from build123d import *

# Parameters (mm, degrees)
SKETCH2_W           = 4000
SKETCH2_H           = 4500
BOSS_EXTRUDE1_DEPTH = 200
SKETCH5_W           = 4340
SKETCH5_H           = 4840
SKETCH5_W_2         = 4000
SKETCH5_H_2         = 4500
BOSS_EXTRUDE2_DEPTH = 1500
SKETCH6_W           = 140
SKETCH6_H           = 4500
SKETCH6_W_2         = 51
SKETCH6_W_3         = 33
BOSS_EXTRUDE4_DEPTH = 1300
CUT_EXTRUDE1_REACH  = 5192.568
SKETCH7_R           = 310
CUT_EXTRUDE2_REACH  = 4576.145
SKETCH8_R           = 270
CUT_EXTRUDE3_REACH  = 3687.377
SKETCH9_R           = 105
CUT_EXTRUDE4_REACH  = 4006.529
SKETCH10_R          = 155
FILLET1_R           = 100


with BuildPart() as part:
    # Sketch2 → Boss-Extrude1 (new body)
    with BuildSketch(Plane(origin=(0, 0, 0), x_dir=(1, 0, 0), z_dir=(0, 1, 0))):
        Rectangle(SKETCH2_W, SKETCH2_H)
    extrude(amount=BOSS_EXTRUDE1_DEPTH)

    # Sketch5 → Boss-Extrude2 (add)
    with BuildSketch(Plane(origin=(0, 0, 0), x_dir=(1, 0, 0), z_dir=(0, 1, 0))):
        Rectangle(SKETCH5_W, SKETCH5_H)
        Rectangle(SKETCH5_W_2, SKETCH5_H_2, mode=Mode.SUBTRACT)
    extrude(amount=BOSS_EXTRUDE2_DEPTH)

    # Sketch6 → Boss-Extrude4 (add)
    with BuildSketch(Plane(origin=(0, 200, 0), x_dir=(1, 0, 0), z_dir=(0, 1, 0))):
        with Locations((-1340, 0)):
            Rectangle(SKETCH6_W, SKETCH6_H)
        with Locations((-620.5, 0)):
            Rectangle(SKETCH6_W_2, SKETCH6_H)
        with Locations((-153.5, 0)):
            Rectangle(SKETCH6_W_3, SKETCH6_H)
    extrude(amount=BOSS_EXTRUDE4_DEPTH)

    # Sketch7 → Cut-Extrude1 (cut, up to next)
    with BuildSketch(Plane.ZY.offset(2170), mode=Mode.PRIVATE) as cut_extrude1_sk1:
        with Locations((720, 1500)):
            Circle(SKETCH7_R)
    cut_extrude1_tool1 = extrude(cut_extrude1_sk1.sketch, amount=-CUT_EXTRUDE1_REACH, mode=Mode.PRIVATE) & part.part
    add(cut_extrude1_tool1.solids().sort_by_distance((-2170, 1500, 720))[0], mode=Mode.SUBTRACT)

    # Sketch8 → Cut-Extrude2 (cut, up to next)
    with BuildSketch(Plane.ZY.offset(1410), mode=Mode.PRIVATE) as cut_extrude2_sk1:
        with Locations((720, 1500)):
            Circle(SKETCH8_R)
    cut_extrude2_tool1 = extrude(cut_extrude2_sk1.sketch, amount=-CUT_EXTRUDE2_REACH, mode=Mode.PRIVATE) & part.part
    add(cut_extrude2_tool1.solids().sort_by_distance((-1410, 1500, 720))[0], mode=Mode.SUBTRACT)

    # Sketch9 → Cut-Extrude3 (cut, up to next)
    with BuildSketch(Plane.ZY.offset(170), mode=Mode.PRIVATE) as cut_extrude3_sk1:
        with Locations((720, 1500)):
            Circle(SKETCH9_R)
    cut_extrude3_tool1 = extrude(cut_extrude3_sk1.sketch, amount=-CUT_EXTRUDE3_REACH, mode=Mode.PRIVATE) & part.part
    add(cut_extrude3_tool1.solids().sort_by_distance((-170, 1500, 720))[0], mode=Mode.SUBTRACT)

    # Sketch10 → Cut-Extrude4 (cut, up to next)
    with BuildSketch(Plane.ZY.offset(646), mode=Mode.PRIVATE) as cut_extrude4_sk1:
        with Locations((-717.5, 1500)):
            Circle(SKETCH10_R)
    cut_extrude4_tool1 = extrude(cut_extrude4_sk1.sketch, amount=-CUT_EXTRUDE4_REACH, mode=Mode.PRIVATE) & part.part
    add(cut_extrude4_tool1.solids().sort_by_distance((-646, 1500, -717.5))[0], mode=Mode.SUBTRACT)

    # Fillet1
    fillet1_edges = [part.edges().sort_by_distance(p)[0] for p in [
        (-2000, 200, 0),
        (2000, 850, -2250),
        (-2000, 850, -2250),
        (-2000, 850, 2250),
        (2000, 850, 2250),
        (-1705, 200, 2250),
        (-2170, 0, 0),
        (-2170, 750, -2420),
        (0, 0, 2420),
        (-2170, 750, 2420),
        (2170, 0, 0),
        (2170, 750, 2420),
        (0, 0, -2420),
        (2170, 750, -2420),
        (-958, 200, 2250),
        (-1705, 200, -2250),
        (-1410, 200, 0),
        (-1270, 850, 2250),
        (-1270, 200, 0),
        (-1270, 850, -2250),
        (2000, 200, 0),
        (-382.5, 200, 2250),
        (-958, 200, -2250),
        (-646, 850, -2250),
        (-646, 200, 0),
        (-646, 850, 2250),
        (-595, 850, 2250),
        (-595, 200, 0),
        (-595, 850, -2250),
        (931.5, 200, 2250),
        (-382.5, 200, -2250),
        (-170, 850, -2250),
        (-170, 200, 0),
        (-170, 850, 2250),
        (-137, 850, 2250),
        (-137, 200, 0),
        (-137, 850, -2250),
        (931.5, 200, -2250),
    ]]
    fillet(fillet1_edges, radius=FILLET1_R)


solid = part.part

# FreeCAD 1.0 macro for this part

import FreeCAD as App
import Part
import Sketcher
from FreeCAD import Vector


def edges_at(feature, points):
    """Names of the edges that pass closest to the given points."""
    edges = feature.Shape.Edges
    near = lambda p: min(range(len(edges)), key=lambda i: edges[i].distToShape(Part.Vertex(*p))[0])
    return sorted({f"Edge{near(p) + 1}" for p in points})

doc = App.newDocument("Part")
body = doc.addObject("PartDesign::Body", "Body")

# Sketch on XZ plane
sketch1 = doc.addObject("Sketcher::SketchObject", "Sketch")
body.addObject(sketch1)
sketch1.AttachmentSupport = (doc.XZ_Plane, [""])
sketch1.MapMode = "FlatFace"
sketch1.addGeometry(Part.LineSegment(Vector(-2000, -2250, 0), Vector(-2000, 2250, 0)), False)
sketch1.addGeometry(Part.LineSegment(Vector(-2000, 2250, 0), Vector(2000, 2250, 0)), False)
sketch1.addGeometry(Part.LineSegment(Vector(2000, 2250, 0), Vector(2000, -2250, 0)), False)
sketch1.addGeometry(Part.LineSegment(Vector(2000, -2250, 0), Vector(-2000, -2250, 0)), False)
sketch1.addConstraint(Sketcher.Constraint("Coincident", 0, 2, 1, 1))
sketch1.addConstraint(Sketcher.Constraint("Coincident", 1, 2, 2, 1))
sketch1.addConstraint(Sketcher.Constraint("Coincident", 2, 2, 3, 1))
sketch1.addConstraint(Sketcher.Constraint("Coincident", 3, 2, 0, 1))
sketch1.addConstraint(Sketcher.Constraint("Vertical", 0))
sketch1.addConstraint(Sketcher.Constraint("Horizontal", 1))
sketch1.addConstraint(Sketcher.Constraint("Vertical", 2))
sketch1.addConstraint(Sketcher.Constraint("Horizontal", 3))
sketch1.addConstraint(Sketcher.Constraint("Symmetric", 0, 2, 2, 2, -1, 1))
sketch1.addConstraint(Sketcher.Constraint("DistanceX", 1, 1, 1, 2, 4000.0))
sketch1.addConstraint(Sketcher.Constraint("DistanceY", 0, 1, 0, 2, 4500.0))
pad1 = doc.addObject("PartDesign::Pad", "Pad")
body.addObject(pad1)
pad1.Profile = sketch1
pad1.Length = 200
pad1.Reversed = True

# Sketch on XZ plane
sketch2 = doc.addObject("Sketcher::SketchObject", "Sketch001")
body.addObject(sketch2)
sketch2.AttachmentSupport = (doc.XZ_Plane, [""])
sketch2.MapMode = "FlatFace"
sketch2.addGeometry(Part.LineSegment(Vector(-2170, -2420, 0), Vector(-2170, 2420, 0)), False)
sketch2.addGeometry(Part.LineSegment(Vector(-2170, 2420, 0), Vector(2170, 2420, 0)), False)
sketch2.addGeometry(Part.LineSegment(Vector(2170, 2420, 0), Vector(2170, -2420, 0)), False)
sketch2.addGeometry(Part.LineSegment(Vector(2170, -2420, 0), Vector(-2170, -2420, 0)), False)
sketch2.addGeometry(Part.LineSegment(Vector(2000, 2250, 0), Vector(-2000, 2250, 0)), False)
sketch2.addGeometry(Part.LineSegment(Vector(-2000, 2250, 0), Vector(-2000, -2250, 0)), False)
sketch2.addGeometry(Part.LineSegment(Vector(-2000, -2250, 0), Vector(2000, -2250, 0)), False)
sketch2.addGeometry(Part.LineSegment(Vector(2000, -2250, 0), Vector(2000, 2250, 0)), False)
sketch2.addConstraint(Sketcher.Constraint("Coincident", 0, 2, 1, 1))
sketch2.addConstraint(Sketcher.Constraint("Coincident", 1, 2, 2, 1))
sketch2.addConstraint(Sketcher.Constraint("Coincident", 2, 2, 3, 1))
sketch2.addConstraint(Sketcher.Constraint("Coincident", 3, 2, 0, 1))
sketch2.addConstraint(Sketcher.Constraint("Coincident", 4, 2, 5, 1))
sketch2.addConstraint(Sketcher.Constraint("Coincident", 5, 2, 6, 1))
sketch2.addConstraint(Sketcher.Constraint("Coincident", 6, 2, 7, 1))
sketch2.addConstraint(Sketcher.Constraint("Coincident", 7, 2, 4, 1))
sketch2.addConstraint(Sketcher.Constraint("Vertical", 0))
sketch2.addConstraint(Sketcher.Constraint("Horizontal", 1))
sketch2.addConstraint(Sketcher.Constraint("Vertical", 2))
sketch2.addConstraint(Sketcher.Constraint("Horizontal", 3))
sketch2.addConstraint(Sketcher.Constraint("Horizontal", 4))
sketch2.addConstraint(Sketcher.Constraint("Vertical", 5))
sketch2.addConstraint(Sketcher.Constraint("Horizontal", 6))
sketch2.addConstraint(Sketcher.Constraint("Vertical", 7))
sketch2.addConstraint(Sketcher.Constraint("Symmetric", 0, 2, 2, 2, -1, 1))
sketch2.addConstraint(Sketcher.Constraint("Symmetric", 4, 2, 6, 2, -1, 1))
sketch2.addConstraint(Sketcher.Constraint("DistanceX", 1, 1, 1, 2, 4340.0))
sketch2.addConstraint(Sketcher.Constraint("DistanceX", 4, 2, 4, 1, 4000.0))
sketch2.addConstraint(Sketcher.Constraint("DistanceY", 0, 1, 0, 2, 4840.0))
sketch2.addConstraint(Sketcher.Constraint("DistanceY", 5, 2, 5, 1, 4500.0))
pad2 = doc.addObject("PartDesign::Pad", "Pad001")
body.addObject(pad2)
pad2.Profile = sketch2
pad2.Length = 1500
pad2.Reversed = True

# Sketch on XZ plane
sketch3 = doc.addObject("Sketcher::SketchObject", "Sketch002")
body.addObject(sketch3)
sketch3.AttachmentSupport = (doc.XZ_Plane, [""])
sketch3.MapMode = "FlatFace"
sketch3.AttachmentOffset = App.Placement(Vector(0, 0, -200), App.Rotation())
sketch3.addGeometry(Part.LineSegment(Vector(-1410, -2250, 0), Vector(-1410, 2250, 0)), False)
sketch3.addGeometry(Part.LineSegment(Vector(-1410, 2250, 0), Vector(-1270, 2250, 0)), False)
sketch3.addGeometry(Part.LineSegment(Vector(-1270, 2250, 0), Vector(-1270, -2250, 0)), False)
sketch3.addGeometry(Part.LineSegment(Vector(-1270, -2250, 0), Vector(-1410, -2250, 0)), False)
sketch3.addGeometry(Part.LineSegment(Vector(-646, -2250, 0), Vector(-646, 2250, 0)), False)
sketch3.addGeometry(Part.LineSegment(Vector(-646, 2250, 0), Vector(-595, 2250, 0)), False)
sketch3.addGeometry(Part.LineSegment(Vector(-595, 2250, 0), Vector(-595, -2250, 0)), False)
sketch3.addGeometry(Part.LineSegment(Vector(-595, -2250, 0), Vector(-646, -2250, 0)), False)
sketch3.addGeometry(Part.LineSegment(Vector(-170, -2250, 0), Vector(-170, 2250, 0)), False)
sketch3.addGeometry(Part.LineSegment(Vector(-170, 2250, 0), Vector(-137, 2250, 0)), False)
sketch3.addGeometry(Part.LineSegment(Vector(-137, 2250, 0), Vector(-137, -2250, 0)), False)
sketch3.addGeometry(Part.LineSegment(Vector(-137, -2250, 0), Vector(-170, -2250, 0)), False)
sketch3.addConstraint(Sketcher.Constraint("Coincident", 0, 2, 1, 1))
sketch3.addConstraint(Sketcher.Constraint("Coincident", 1, 2, 2, 1))
sketch3.addConstraint(Sketcher.Constraint("Coincident", 2, 2, 3, 1))
sketch3.addConstraint(Sketcher.Constraint("Coincident", 3, 2, 0, 1))
sketch3.addConstraint(Sketcher.Constraint("Coincident", 4, 2, 5, 1))
sketch3.addConstraint(Sketcher.Constraint("Coincident", 5, 2, 6, 1))
sketch3.addConstraint(Sketcher.Constraint("Coincident", 6, 2, 7, 1))
sketch3.addConstraint(Sketcher.Constraint("Coincident", 7, 2, 4, 1))
sketch3.addConstraint(Sketcher.Constraint("Coincident", 8, 2, 9, 1))
sketch3.addConstraint(Sketcher.Constraint("Coincident", 9, 2, 10, 1))
sketch3.addConstraint(Sketcher.Constraint("Coincident", 10, 2, 11, 1))
sketch3.addConstraint(Sketcher.Constraint("Coincident", 11, 2, 8, 1))
sketch3.addConstraint(Sketcher.Constraint("Vertical", 0))
sketch3.addConstraint(Sketcher.Constraint("Horizontal", 1))
sketch3.addConstraint(Sketcher.Constraint("Vertical", 2))
sketch3.addConstraint(Sketcher.Constraint("Horizontal", 3))
sketch3.addConstraint(Sketcher.Constraint("Vertical", 4))
sketch3.addConstraint(Sketcher.Constraint("Horizontal", 5))
sketch3.addConstraint(Sketcher.Constraint("Vertical", 6))
sketch3.addConstraint(Sketcher.Constraint("Horizontal", 7))
sketch3.addConstraint(Sketcher.Constraint("Vertical", 8))
sketch3.addConstraint(Sketcher.Constraint("Horizontal", 9))
sketch3.addConstraint(Sketcher.Constraint("Vertical", 10))
sketch3.addConstraint(Sketcher.Constraint("Horizontal", 11))
sketch3.addConstraint(Sketcher.Constraint("Horizontal", 1, 2, 4, 2))
sketch3.addConstraint(Sketcher.Constraint("Horizontal", 3, 2, 6, 2))
sketch3.addConstraint(Sketcher.Constraint("Horizontal", 5, 2, 8, 2))
sketch3.addConstraint(Sketcher.Constraint("Horizontal", 7, 2, 10, 2))
sketch3.addConstraint(Sketcher.Constraint("DistanceX", 1, 1, 1, 2, 140.0))
sketch3.addConstraint(Sketcher.Constraint("DistanceX", 5, 1, 5, 2, 51.0))
sketch3.addConstraint(Sketcher.Constraint("DistanceX", 9, 1, 9, 2, 33.0))
sketch3.addConstraint(Sketcher.Constraint("DistanceY", 0, 1, 0, 2, 4500.0))
sketch3.addConstraint(Sketcher.Constraint("DistanceX", 0, 2, -1, 1, 1410.0))
sketch3.addConstraint(Sketcher.Constraint("DistanceY", -1, 1, 0, 2, 2250.0))
sketch3.addConstraint(Sketcher.Constraint("DistanceX", 4, 2, -1, 1, 646.0))
sketch3.addConstraint(Sketcher.Constraint("DistanceX", 8, 2, -1, 1, 170.0))
pad3 = doc.addObject("PartDesign::Pad", "Pad002")
body.addObject(pad3)
pad3.Profile = sketch3
pad3.Length = 1300
pad3.Reversed = True

# Sketch on YZ plane
sketch4 = doc.addObject("Sketcher::SketchObject", "Sketch003")
body.addObject(sketch4)
sketch4.AttachmentSupport = (doc.YZ_Plane, [""])
sketch4.MapMode = "FlatFace"
sketch4.AttachmentOffset = App.Placement(Vector(0, 0, -2170), App.Rotation())
sketch4.addGeometry(Part.Circle(Vector(1500, 720, 0), Vector(0, 0, 1), 310), False)
sketch4.addConstraint(Sketcher.Constraint("Diameter", 0, 620.0))
sketch4.addConstraint(Sketcher.Constraint("DistanceX", -1, 1, 0, 3, 1500.0))
sketch4.addConstraint(Sketcher.Constraint("DistanceY", -1, 1, 0, 3, 720.0))
pocket1 = doc.addObject("PartDesign::Pocket", "Pocket")
body.addObject(pocket1)
pocket1.Profile = sketch4
pocket1.Type = "UpToFirst"
pocket1.Reversed = True

# Sketch on YZ plane
sketch5 = doc.addObject("Sketcher::SketchObject", "Sketch004")
body.addObject(sketch5)
sketch5.AttachmentSupport = (doc.YZ_Plane, [""])
sketch5.MapMode = "FlatFace"
sketch5.AttachmentOffset = App.Placement(Vector(0, 0, -1410), App.Rotation())
sketch5.addGeometry(Part.Circle(Vector(1500, 720, 0), Vector(0, 0, 1), 270), False)
sketch5.addConstraint(Sketcher.Constraint("Diameter", 0, 540.0))
sketch5.addConstraint(Sketcher.Constraint("DistanceX", -1, 1, 0, 3, 1500.0))
sketch5.addConstraint(Sketcher.Constraint("DistanceY", -1, 1, 0, 3, 720.0))
pocket2 = doc.addObject("PartDesign::Pocket", "Pocket001")
body.addObject(pocket2)
pocket2.Profile = sketch5
pocket2.Type = "UpToFirst"
pocket2.Reversed = True

# Sketch on YZ plane
sketch6 = doc.addObject("Sketcher::SketchObject", "Sketch005")
body.addObject(sketch6)
sketch6.AttachmentSupport = (doc.YZ_Plane, [""])
sketch6.MapMode = "FlatFace"
sketch6.AttachmentOffset = App.Placement(Vector(0, 0, -170), App.Rotation())
sketch6.addGeometry(Part.Circle(Vector(1500, 720, 0), Vector(0, 0, 1), 105), False)
sketch6.addConstraint(Sketcher.Constraint("Diameter", 0, 210.0))
sketch6.addConstraint(Sketcher.Constraint("DistanceX", -1, 1, 0, 3, 1500.0))
sketch6.addConstraint(Sketcher.Constraint("DistanceY", -1, 1, 0, 3, 720.0))
pocket3 = doc.addObject("PartDesign::Pocket", "Pocket002")
body.addObject(pocket3)
pocket3.Profile = sketch6
pocket3.Type = "UpToFirst"
pocket3.Reversed = True

# Sketch on YZ plane
sketch7 = doc.addObject("Sketcher::SketchObject", "Sketch006")
body.addObject(sketch7)
sketch7.AttachmentSupport = (doc.YZ_Plane, [""])
sketch7.MapMode = "FlatFace"
sketch7.AttachmentOffset = App.Placement(Vector(0, 0, -646), App.Rotation())
sketch7.addGeometry(Part.Circle(Vector(1500, -717.5, 0), Vector(0, 0, 1), 155), False)
sketch7.addConstraint(Sketcher.Constraint("Diameter", 0, 310.0))
sketch7.addConstraint(Sketcher.Constraint("DistanceX", -1, 1, 0, 3, 1500.0))
sketch7.addConstraint(Sketcher.Constraint("DistanceY", 0, 3, -1, 1, 717.5))
pocket4 = doc.addObject("PartDesign::Pocket", "Pocket003")
body.addObject(pocket4)
pocket4.Profile = sketch7
pocket4.Type = "UpToFirst"
pocket4.Reversed = True
doc.recompute()

fillet = doc.addObject("PartDesign::Fillet", "Fillet")
body.addObject(fillet)
fillet.Base = (pocket4, edges_at(pocket4, [
    (-2000, 200, 0),
    (2000, 850, -2250),
    (-2000, 850, -2250),
    (-2000, 850, 2250),
    (2000, 850, 2250),
    (-1705, 200, 2250),
    (-2170, 0, 0),
    (-2170, 750, -2420),
    (0, 0, 2420),
    (-2170, 750, 2420),
    (2170, 0, 0),
    (2170, 750, 2420),
    (0, 0, -2420),
    (2170, 750, -2420),
    (-958, 200, 2250),
    (-1705, 200, -2250),
    (-1410, 200, 0),
    (-1270, 850, 2250),
    (-1270, 200, 0),
    (-1270, 850, -2250),
    (2000, 200, 0),
    (-382.5, 200, 2250),
    (-958, 200, -2250),
    (-646, 850, -2250),
    (-646, 200, 0),
    (-646, 850, 2250),
    (-595, 850, 2250),
    (-595, 200, 0),
    (-595, 850, -2250),
    (931.5, 200, 2250),
    (-382.5, 200, -2250),
    (-170, 850, -2250),
    (-170, 200, 0),
    (-170, 850, 2250),
    (-137, 850, 2250),
    (-137, 200, 0),
    (-137, 850, -2250),
    (931.5, 200, -2250),
]))
fillet.Radius = 100

doc.recompute()
